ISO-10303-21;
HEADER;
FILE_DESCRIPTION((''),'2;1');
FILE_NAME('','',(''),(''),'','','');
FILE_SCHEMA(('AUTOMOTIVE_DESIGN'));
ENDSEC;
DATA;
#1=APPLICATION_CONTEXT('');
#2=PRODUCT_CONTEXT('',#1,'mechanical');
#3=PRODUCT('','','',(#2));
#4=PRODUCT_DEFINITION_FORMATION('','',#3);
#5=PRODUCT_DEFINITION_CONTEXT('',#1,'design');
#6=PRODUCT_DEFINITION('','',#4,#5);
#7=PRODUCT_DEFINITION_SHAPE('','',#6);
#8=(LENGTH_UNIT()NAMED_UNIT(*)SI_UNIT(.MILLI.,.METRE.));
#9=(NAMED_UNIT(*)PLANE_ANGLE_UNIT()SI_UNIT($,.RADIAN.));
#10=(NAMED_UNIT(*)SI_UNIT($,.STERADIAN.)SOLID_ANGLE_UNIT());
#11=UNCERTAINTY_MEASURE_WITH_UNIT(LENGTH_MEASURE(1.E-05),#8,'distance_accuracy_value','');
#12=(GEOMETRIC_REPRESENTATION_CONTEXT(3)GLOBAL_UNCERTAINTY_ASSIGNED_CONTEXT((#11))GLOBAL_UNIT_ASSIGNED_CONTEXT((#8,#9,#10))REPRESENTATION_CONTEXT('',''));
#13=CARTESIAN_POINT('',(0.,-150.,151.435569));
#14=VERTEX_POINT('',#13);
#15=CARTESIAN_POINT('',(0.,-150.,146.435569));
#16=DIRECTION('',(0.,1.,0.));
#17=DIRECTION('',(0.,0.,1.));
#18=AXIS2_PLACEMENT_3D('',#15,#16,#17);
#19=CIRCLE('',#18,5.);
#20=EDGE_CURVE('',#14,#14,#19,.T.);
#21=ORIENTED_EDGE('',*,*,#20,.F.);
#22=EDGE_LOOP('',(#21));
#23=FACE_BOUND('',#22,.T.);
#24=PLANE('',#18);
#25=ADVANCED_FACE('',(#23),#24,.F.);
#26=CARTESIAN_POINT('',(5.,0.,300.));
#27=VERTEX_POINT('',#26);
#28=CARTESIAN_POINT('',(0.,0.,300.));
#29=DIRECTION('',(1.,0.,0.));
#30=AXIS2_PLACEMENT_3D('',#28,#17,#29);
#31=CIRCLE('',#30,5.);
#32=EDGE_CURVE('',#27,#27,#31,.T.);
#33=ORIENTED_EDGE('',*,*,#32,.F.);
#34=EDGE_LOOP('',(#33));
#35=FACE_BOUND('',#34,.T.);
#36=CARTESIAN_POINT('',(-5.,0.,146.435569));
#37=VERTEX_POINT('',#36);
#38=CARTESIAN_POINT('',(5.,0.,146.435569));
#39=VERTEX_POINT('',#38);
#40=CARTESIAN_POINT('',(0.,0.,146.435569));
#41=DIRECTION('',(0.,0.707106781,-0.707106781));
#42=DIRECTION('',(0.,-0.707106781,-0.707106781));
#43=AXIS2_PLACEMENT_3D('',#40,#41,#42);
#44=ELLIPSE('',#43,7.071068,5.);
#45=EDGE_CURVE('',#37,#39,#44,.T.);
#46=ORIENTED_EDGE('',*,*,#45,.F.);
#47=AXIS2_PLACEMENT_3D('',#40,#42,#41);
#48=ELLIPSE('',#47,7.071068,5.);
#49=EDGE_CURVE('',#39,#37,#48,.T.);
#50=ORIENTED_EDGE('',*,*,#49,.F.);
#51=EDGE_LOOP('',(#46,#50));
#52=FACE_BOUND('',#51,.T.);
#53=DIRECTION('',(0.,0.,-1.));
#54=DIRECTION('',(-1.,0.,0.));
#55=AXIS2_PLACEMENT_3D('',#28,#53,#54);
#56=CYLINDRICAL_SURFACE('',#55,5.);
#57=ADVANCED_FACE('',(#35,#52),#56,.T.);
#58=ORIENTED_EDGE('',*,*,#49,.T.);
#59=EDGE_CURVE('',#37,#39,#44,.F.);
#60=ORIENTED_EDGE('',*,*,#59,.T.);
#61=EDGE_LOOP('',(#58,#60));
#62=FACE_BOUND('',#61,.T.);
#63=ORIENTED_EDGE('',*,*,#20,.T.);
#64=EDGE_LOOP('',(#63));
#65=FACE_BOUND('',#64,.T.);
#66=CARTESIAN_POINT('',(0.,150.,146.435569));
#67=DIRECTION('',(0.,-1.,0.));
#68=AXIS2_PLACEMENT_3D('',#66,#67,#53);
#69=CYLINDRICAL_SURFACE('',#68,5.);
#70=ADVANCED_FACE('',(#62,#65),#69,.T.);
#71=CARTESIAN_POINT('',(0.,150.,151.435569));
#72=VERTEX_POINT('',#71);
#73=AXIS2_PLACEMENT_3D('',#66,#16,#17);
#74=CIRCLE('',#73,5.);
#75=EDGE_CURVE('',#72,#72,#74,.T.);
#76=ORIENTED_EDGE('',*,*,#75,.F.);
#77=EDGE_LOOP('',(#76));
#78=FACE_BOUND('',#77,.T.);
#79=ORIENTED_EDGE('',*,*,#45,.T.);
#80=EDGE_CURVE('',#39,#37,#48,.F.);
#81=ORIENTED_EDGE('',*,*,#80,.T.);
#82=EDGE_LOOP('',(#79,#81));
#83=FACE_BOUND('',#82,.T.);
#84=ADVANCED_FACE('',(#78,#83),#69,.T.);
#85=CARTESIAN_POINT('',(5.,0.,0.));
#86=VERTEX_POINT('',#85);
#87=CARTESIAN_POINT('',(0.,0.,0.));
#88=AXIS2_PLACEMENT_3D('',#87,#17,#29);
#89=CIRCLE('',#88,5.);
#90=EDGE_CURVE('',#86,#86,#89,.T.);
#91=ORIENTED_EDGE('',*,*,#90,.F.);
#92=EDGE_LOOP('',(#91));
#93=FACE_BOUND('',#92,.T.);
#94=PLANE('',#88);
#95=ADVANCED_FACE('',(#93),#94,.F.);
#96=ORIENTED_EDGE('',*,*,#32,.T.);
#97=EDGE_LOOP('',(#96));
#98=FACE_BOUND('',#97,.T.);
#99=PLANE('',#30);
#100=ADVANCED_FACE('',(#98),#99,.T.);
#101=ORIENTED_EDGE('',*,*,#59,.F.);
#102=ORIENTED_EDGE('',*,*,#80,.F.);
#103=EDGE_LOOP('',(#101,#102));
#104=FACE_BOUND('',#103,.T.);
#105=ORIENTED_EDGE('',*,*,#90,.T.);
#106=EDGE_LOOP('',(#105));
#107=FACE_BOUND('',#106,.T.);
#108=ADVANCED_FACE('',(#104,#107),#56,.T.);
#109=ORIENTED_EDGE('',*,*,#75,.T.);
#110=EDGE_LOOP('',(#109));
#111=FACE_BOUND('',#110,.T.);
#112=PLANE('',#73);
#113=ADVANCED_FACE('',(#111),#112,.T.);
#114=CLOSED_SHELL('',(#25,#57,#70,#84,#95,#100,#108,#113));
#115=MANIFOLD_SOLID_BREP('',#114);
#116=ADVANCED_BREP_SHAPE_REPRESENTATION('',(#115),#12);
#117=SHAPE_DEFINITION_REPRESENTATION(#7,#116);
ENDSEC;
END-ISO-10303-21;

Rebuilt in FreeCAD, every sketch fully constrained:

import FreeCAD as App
import Part
import Sketcher
from FreeCAD import Vector
Q = App.Units.Quantity

doc = App.newDocument("Part")
body = doc.addObject("PartDesign::Body", "Body")

# Sketch on XY plane
sketch1 = body.newObject("Sketcher::SketchObject", "Sketch")
sketch1.AttachmentSupport = (doc.getObject("XY_Plane"), [""])
sketch1.MapMode = "FlatFace"
sketch1.addGeometry(Part.Circle(Vector(0, 0, 0), Vector(0, 0, 1), 5), False)
sketch1.addConstraint([
    Sketcher.Constraint("Coincident", 0, 3, -1, 1),
    Sketcher.Constraint("Diameter", 0, Q("10 mm")),
])
pad1 = body.newObject("PartDesign::Pad", "Pad")
pad1.Profile = sketch1
pad1.Length = 300

# Sketch on XZ plane
sketch2 = body.newObject("Sketcher::SketchObject", "Sketch001")
sketch2.AttachmentSupport = (doc.getObject("XZ_Plane"), [""])
sketch2.MapMode = "FlatFace"
sketch2.addGeometry(Part.Circle(Vector(0, 146, 0), Vector(0, 0, 1), 5), False)
sketch2.addConstraint([
    Sketcher.Constraint("PointOnObject", 0, 3, -2),
    Sketcher.Constraint("Diameter", 0, Q("10 mm")),
    Sketcher.Constraint("DistanceY", -1, 1, 0, 3, Q("146.435569 mm")),
])
pad2 = body.newObject("PartDesign::Pad", "Pad001")
pad2.Profile = sketch2
pad2.Length = 300
pad2.Midplane = True

doc.recompute()
